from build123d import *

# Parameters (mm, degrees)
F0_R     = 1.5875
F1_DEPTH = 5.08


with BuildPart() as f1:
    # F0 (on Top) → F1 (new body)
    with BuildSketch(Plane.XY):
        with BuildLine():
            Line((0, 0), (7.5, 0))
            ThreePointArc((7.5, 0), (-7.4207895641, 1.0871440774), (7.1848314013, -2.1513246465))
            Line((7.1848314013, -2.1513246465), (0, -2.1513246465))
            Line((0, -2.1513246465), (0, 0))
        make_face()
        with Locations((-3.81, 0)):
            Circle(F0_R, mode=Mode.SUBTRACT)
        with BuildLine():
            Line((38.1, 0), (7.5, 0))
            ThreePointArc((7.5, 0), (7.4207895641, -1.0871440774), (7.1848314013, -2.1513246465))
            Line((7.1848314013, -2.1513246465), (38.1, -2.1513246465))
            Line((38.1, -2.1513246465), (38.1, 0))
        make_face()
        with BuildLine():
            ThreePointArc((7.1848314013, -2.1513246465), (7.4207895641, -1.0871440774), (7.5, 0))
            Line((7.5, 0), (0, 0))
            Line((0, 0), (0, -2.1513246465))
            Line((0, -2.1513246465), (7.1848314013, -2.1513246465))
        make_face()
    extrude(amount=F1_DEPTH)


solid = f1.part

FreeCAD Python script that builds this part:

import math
import FreeCAD as App
import Part
import Sketcher
from FreeCAD import Vector
Q = App.Units.Quantity

doc = App.newDocument("Part")
body = doc.addObject("PartDesign::Body", "Body")

sketch1 = body.newObject("Sketcher::SketchObject", "Sketch")
sketch1.AttachmentSupport = (doc.getObject("XY_Plane"), [""])
sketch1.MapMode = "FlatFace"
sketch1.addGeometry(Part.ArcOfCircle(Part.Circle(Vector(0, 0, 0), Vector(0, 0, 1), 7.5), math.radians(0), math.radians(343.330938)), False)
sketch1.addGeometry(Part.LineSegment(Vector(7.184831, -2.151325, 0), Vector(38.1, -2.151325, 0)), False)
sketch1.addGeometry(Part.LineSegment(Vector(38.1, -2.151325, 0), Vector(38.1, 0, 0)), False)
sketch1.addGeometry(Part.LineSegment(Vector(38.1, 0, 0), Vector(7.5, 0, 0)), False)
sketch1.addGeometry(Part.Circle(Vector(-3.81, 0, 0), Vector(0, 0, 1), 1.5875), False)
sketch1.addConstraint(Sketcher.Constraint("Coincident", 0, 2, 1, 1))
sketch1.addConstraint(Sketcher.Constraint("Coincident", 1, 2, 2, 1))
sketch1.addConstraint(Sketcher.Constraint("Coincident", 2, 2, 3, 1))
sketch1.addConstraint(Sketcher.Constraint("Coincident", 3, 2, 0, 1))
sketch1.addConstraint(Sketcher.Constraint("Horizontal", 1))
sketch1.addConstraint(Sketcher.Constraint("Vertical", 2))
sketch1.addConstraint(Sketcher.Constraint("Horizontal", 3))
sketch1.addConstraint(Sketcher.Constraint("Coincident", 0, 3, -1, 1))
sketch1.addConstraint(Sketcher.Constraint("PointOnObject", 4, 3, -1))
sketch1.addConstraint(Sketcher.Constraint("PointOnObject", 2, 2, -1))
sketch1.addConstraint(Sketcher.Constraint("Radius", 0, Q("7.5 mm")))
sketch1.addConstraint(Sketcher.Constraint("Diameter", 4, Q("3.175 mm")))
sketch1.addConstraint(Sketcher.Constraint("DistanceX", 3, 2, 3, 1, Q("30.6 mm")))
sketch1.addConstraint(Sketcher.Constraint("DistanceX", 4, 3, -1, 1, Q("3.81 mm")))
sketch1.addConstraint(Sketcher.Constraint("DistanceX", 1, 1, 1, 2, Q("30.915169 mm")))
pad1 = body.newObject("PartDesign::Pad", "Pad")
pad1.Profile = sketch1
pad1.Length = 5.08

doc.recompute()
